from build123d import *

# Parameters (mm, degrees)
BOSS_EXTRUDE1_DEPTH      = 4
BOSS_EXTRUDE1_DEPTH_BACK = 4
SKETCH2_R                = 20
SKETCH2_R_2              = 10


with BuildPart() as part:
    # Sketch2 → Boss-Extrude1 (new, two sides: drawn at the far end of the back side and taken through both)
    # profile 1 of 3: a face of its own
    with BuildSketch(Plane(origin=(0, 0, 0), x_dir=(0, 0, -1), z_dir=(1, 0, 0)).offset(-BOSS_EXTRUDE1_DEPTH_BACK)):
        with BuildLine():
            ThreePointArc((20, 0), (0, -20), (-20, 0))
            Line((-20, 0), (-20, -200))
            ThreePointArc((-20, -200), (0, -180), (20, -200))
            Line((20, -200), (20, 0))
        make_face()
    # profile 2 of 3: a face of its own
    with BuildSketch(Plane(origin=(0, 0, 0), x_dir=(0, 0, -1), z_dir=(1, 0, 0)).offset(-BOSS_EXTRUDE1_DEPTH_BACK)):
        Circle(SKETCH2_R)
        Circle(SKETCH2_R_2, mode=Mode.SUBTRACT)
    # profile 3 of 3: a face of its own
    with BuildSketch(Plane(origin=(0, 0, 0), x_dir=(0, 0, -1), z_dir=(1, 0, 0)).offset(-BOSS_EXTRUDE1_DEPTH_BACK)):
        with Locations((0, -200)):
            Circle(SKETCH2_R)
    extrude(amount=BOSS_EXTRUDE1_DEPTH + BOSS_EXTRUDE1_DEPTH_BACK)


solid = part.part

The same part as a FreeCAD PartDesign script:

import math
import FreeCAD as App
import Part
import Sketcher
Q = App.Units.Quantity

doc = App.newDocument("Part")
body = doc.addObject("PartDesign::Body", "Body")

sketch1 = body.newObject("Sketcher::SketchObject", "Sketch")
sketch1.AttachmentSupport = (doc.getObject("YZ_Plane"), [""])
sketch1.MapMode = "FlatFace"
sketch1.addGeometry(Part.LineSegment(App.Vector(0, 20, 0), App.Vector(-200, 20, 0)), False)
sketch1.addGeometry(Part.ArcOfCircle(Part.Circle(App.Vector(-200, 0, 0), App.Vector(0, 0, 1), 20), math.radians(90), math.radians(270)), False)
sketch1.addGeometry(Part.LineSegment(App.Vector(-200, -20, 0), App.Vector(0, -20, 0)), False)
sketch1.addGeometry(Part.ArcOfCircle(Part.Circle(App.Vector(0, 0, 0), App.Vector(0, 0, 1), 20), math.radians(-90), math.radians(90)), False)
sketch1.addGeometry(Part.Circle(App.Vector(0, 0, 0), App.Vector(0, 0, 1), 10), False)
sketch1.addConstraint(Sketcher.Constraint("Tangent", 0, 2, 1, 1))
sketch1.addConstraint(Sketcher.Constraint("Tangent", 1, 2, 2, 1))
sketch1.addConstraint(Sketcher.Constraint("Tangent", 2, 2, 3, 1))
sketch1.addConstraint(Sketcher.Constraint("Tangent", 3, 2, 0, 1))
sketch1.addConstraint(Sketcher.Constraint("Horizontal", 0))
sketch1.addConstraint(Sketcher.Constraint("Horizontal", 2))
sketch1.addConstraint(Sketcher.Constraint("Coincident", 3, 3, -1, 1))
sketch1.addConstraint(Sketcher.Constraint("Coincident", 4, 3, -1, 1))
sketch1.addConstraint(Sketcher.Constraint("Diameter", 4, Q("20 mm")))
sketch1.addConstraint(Sketcher.Constraint("Radius", 1, Q("20 mm")))
sketch1.addConstraint(Sketcher.Constraint("DistanceX", 0, 2, 0, 1, Q("200 mm")))
pad1 = body.newObject("PartDesign::Pad", "Pad")
pad1.Profile = sketch1
pad1.Type = "TwoLengths"
pad1.Length = 4
pad1.Length2 = 4

doc.recompute()
